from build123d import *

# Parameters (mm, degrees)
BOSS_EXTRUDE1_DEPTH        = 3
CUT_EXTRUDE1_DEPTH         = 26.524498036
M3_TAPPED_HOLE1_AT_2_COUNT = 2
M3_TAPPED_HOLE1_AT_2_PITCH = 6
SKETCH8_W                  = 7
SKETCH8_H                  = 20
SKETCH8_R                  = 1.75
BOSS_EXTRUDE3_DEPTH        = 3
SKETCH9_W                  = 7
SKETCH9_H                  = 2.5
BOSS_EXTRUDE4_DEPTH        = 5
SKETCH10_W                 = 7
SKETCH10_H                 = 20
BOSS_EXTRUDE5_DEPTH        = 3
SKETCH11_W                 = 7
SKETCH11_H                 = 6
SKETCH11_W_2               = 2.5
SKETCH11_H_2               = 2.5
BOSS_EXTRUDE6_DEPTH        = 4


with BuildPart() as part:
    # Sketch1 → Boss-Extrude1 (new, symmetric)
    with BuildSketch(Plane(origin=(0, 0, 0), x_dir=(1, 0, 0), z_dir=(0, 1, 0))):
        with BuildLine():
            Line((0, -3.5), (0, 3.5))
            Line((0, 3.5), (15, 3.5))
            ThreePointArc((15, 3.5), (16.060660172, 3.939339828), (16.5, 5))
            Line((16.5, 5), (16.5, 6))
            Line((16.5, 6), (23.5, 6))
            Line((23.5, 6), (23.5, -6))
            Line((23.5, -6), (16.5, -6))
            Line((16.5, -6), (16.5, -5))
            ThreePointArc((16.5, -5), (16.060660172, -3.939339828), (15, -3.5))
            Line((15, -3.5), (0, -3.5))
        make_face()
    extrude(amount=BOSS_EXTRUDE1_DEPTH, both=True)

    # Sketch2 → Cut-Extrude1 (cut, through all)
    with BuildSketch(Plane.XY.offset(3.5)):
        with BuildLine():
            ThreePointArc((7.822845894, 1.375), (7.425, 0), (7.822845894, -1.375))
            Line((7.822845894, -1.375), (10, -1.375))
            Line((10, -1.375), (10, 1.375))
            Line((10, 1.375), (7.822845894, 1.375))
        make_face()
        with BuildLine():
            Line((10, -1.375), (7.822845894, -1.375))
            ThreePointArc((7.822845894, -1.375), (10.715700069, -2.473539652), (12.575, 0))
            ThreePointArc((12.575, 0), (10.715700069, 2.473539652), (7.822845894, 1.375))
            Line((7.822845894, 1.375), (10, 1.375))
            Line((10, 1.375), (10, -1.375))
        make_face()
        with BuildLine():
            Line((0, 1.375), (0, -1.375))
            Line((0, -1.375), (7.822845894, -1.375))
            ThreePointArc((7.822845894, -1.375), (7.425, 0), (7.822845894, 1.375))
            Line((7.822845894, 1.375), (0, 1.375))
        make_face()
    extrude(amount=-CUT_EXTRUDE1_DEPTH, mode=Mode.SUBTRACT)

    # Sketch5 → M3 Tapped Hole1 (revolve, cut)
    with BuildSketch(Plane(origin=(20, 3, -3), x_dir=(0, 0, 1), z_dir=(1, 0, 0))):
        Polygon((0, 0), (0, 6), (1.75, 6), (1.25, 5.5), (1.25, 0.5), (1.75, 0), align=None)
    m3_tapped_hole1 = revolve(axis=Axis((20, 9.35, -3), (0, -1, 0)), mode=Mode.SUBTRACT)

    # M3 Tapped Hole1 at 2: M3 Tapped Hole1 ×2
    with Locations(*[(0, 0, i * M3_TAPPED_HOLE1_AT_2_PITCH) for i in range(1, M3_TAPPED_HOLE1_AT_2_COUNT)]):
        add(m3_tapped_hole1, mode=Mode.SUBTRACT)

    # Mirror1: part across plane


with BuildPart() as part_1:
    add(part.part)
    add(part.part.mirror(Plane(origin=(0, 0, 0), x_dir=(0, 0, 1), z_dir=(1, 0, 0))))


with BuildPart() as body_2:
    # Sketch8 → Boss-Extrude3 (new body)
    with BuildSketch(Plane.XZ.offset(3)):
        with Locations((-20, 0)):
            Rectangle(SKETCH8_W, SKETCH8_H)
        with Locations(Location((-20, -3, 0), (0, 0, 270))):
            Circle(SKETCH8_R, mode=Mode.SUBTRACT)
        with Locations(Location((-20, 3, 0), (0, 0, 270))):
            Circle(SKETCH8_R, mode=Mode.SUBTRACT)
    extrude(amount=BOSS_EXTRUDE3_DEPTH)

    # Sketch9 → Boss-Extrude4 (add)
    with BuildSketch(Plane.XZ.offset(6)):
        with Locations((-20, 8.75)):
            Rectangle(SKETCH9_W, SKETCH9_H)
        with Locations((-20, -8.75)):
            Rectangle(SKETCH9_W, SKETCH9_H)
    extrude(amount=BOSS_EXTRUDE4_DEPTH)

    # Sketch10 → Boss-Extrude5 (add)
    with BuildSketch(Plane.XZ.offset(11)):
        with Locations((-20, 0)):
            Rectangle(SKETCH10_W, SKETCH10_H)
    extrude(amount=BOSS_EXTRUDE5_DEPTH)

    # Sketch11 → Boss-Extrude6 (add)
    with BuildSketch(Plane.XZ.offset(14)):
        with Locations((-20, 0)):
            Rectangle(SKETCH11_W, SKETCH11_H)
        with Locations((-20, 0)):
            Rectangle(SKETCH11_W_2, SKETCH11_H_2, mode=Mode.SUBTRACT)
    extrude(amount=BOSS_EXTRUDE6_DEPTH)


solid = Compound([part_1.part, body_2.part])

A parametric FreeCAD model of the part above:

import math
import FreeCAD as App
import Part
import Sketcher
Q = App.Units.Quantity


def add_polygon(sketch, points):
    """Adds a closed chain of lines whose ends are joined by coincident constraints."""
    first, n = sketch.GeometryCount, len(points)
    for a, b in zip(points, points[1:] + points[:1]):
        sketch.addGeometry(Part.LineSegment(App.Vector(*a, 0), App.Vector(*b, 0)), False)
    for i in range(n):
        sketch.addConstraint(Sketcher.Constraint("Coincident", first + i, 2, first + (i + 1) % n, 1))

doc = App.newDocument("Part")
body = doc.addObject("PartDesign::Body", "Body")

# Sketch on XZ plane
sketch1 = body.newObject("Sketcher::SketchObject", "Sketch")
sketch1.AttachmentSupport = (doc.getObject("XZ_Plane"), [""])
sketch1.MapMode = "FlatFace"
sketch1.addGeometry(Part.LineSegment(App.Vector(0, -3.5, 0), App.Vector(0, 3.5, 0)), False)
sketch1.addGeometry(Part.LineSegment(App.Vector(0, 3.5, 0), App.Vector(15, 3.5, 0)), False)
sketch1.addGeometry(Part.ArcOfCircle(Part.Circle(App.Vector(15, 5, 0), App.Vector(0, 0, 1), 1.5), math.radians(-90), math.radians(0)), False)
sketch1.addGeometry(Part.LineSegment(App.Vector(16.5, 5, 0), App.Vector(16.5, 6, 0)), False)
sketch1.addGeometry(Part.LineSegment(App.Vector(16.5, 6, 0), App.Vector(23.5, 6, 0)), False)
sketch1.addGeometry(Part.LineSegment(App.Vector(23.5, 6, 0), App.Vector(23.5, -6, 0)), False)
sketch1.addGeometry(Part.LineSegment(App.Vector(23.5, -6, 0), App.Vector(16.5, -6, 0)), False)
sketch1.addGeometry(Part.LineSegment(App.Vector(16.5, -6, 0), App.Vector(16.5, -5, 0)), False)
sketch1.addGeometry(Part.ArcOfCircle(Part.Circle(App.Vector(15, -5, 0), App.Vector(0, 0, 1), 1.5), math.radians(0), math.radians(90)), False)
sketch1.addGeometry(Part.LineSegment(App.Vector(15, -3.5, 0), App.Vector(0, -3.5, 0)), False)
sketch1.addConstraint(Sketcher.Constraint("Coincident", 0, 2, 1, 1))
sketch1.addConstraint(Sketcher.Constraint("Tangent", 1, 2, 2, 1))
sketch1.addConstraint(Sketcher.Constraint("Tangent", 2, 2, 3, 1))
sketch1.addConstraint(Sketcher.Constraint("Coincident", 3, 2, 4, 1))
sketch1.addConstraint(Sketcher.Constraint("Coincident", 4, 2, 5, 1))
sketch1.addConstraint(Sketcher.Constraint("Coincident", 5, 2, 6, 1))
sketch1.addConstraint(Sketcher.Constraint("Coincident", 6, 2, 7, 1))
sketch1.addConstraint(Sketcher.Constraint("Tangent", 7, 2, 8, 1))
sketch1.addConstraint(Sketcher.Constraint("Tangent", 8, 2, 9, 1))
sketch1.addConstraint(Sketcher.Constraint("Coincident", 9, 2, 0, 1))
sketch1.addConstraint(Sketcher.Constraint("Vertical", 0))
sketch1.addConstraint(Sketcher.Constraint("Horizontal", 1))
sketch1.addConstraint(Sketcher.Constraint("Vertical", 3))
sketch1.addConstraint(Sketcher.Constraint("Horizontal", 4))
sketch1.addConstraint(Sketcher.Constraint("Vertical", 5))
sketch1.addConstraint(Sketcher.Constraint("Horizontal", 6))
sketch1.addConstraint(Sketcher.Constraint("Vertical", 7))
sketch1.addConstraint(Sketcher.Constraint("Horizontal", 9))
sketch1.addConstraint(Sketcher.Constraint("Equal", 2, 8))
sketch1.addConstraint(Sketcher.Constraint("Symmetric", 0, 2, 9, 2, -1, 1))
sketch1.addConstraint(Sketcher.Constraint("Symmetric", 3, 2, 6, 2, -1))
sketch1.addConstraint(Sketcher.Constraint("Equal", 6, 0))
sketch1.addConstraint(Sketcher.Constraint("Radius", 2, Q("1.5 mm")))
sketch1.addConstraint(Sketcher.Constraint("DistanceX", 1, 1, 1, 2, Q("15 mm")))
sketch1.addConstraint(Sketcher.Constraint("DistanceX", 4, 1, 4, 2, Q("7 mm")))
sketch1.addConstraint(Sketcher.Constraint("DistanceY", 3, 1, 3, 2, Q("1 mm")))
pad1 = body.newObject("PartDesign::Pad", "Pad")
pad1.Profile = sketch1
pad1.Length = 6
pad1.Midplane = True

# Sketch on XY plane
sketch2 = body.newObject("Sketcher::SketchObject", "Sketch001")
sketch2.AttachmentSupport = (doc.getObject("XY_Plane"), [""])
sketch2.MapMode = "FlatFace"
sketch2.AttachmentOffset = App.Placement(App.Vector(0, 0, 3.5), App.Rotation())
sketch2.addGeometry(Part.ArcOfCircle(Part.Circle(App.Vector(10, 0, 0), App.Vector(0, 0, 1), 2.6), math.radians(-148), math.radians(0)), False)
sketch2.addGeometry(Part.ArcOfCircle(Part.Circle(App.Vector(10, 0, 0), App.Vector(0, 0, 1), 2.6), math.radians(0), math.radians(148)), False)
sketch2.addGeometry(Part.LineSegment(App.Vector(7.8, 1.4, 0), App.Vector(0, 1.4, 0)), False)
sketch2.addGeometry(Part.LineSegment(App.Vector(0, 1.4, 0), App.Vector(0, -1.4, 0)), False)
sketch2.addGeometry(Part.LineSegment(App.Vector(0, -1.4, 0), App.Vector(7.8, -1.4, 0)), False)
sketch2.addConstraint(Sketcher.Constraint("Tangent", 0, 2, 1, 1))
sketch2.addConstraint(Sketcher.Constraint("Coincident", 1, 2, 2, 1))
sketch2.addConstraint(Sketcher.Constraint("Coincident", 2, 2, 3, 1))
sketch2.addConstraint(Sketcher.Constraint("Coincident", 3, 2, 4, 1))
sketch2.addConstraint(Sketcher.Constraint("Coincident", 4, 2, 0, 1))
sketch2.addConstraint(Sketcher.Constraint("Horizontal", 2))
sketch2.addConstraint(Sketcher.Constraint("Vertical", 3))
sketch2.addConstraint(Sketcher.Constraint("Horizontal", 4))
sketch2.addConstraint(Sketcher.Constraint("Equal", 0, 1))
sketch2.addConstraint(Sketcher.Constraint("Symmetric", 2, 2, 3, 2, -1, 1))
sketch2.addConstraint(Sketcher.Constraint("PointOnObject", 0, 3, -1))
sketch2.addConstraint(Sketcher.Constraint("PointOnObject", 0, 2, -1))
sketch2.addConstraint(Sketcher.Constraint("DistanceX", -1, 1, 0, 3, Q("10 mm")))
sketch2.addConstraint(Sketcher.Constraint("Radius", 0, Q("2.575 mm")))
sketch2.addConstraint(Sketcher.Constraint("DistanceY", 3, 2, 3, 1, Q("2.75 mm")))
pocket1 = body.newObject("PartDesign::Pocket", "Pocket")
pocket1.Profile = sketch2
pocket1.Type = "ThroughAll"

# Sketch on YZ plane
sketch3 = body.newObject("Sketcher::SketchObject", "Sketch002")
sketch3.AttachmentSupport = (doc.getObject("YZ_Plane"), [""])
sketch3.MapMode = "FlatFace"
sketch3.AttachmentOffset = App.Placement(App.Vector(0, 0, 20), App.Rotation())
add_polygon(sketch3, [(-3, -3), (3, -3), (3, -1.2), (2.5, -1.8), (-2.5, -1.8), (-3, -1.2)])  # lines 0-5
sketch3.addGeometry(Part.LineSegment(App.Vector(3, -3, 0), App.Vector(-3, -3, 0)), True)  # axis
sketch3.addConstraint(Sketcher.Constraint("Horizontal", 0))
sketch3.addConstraint(Sketcher.Constraint("Vertical", 1))
sketch3.addConstraint(Sketcher.Constraint("Horizontal", 3))
sketch3.addConstraint(Sketcher.Constraint("Vertical", 5))
sketch3.addConstraint(Sketcher.Constraint("Horizontal", 6))
sketch3.addConstraint(Sketcher.Constraint("Coincident", 6, 1, 0, 2))
sketch3.addConstraint(Sketcher.Constraint("Symmetric", 1, 2, 4, 2, -2))
sketch3.addConstraint(Sketcher.Constraint("Perpendicular", 2, 4))
sketch3.addConstraint(Sketcher.Constraint("Vertical", 4, 2, 6, 2))
sketch3.addConstraint(Sketcher.Constraint("Equal", 2, 4))
sketch3.addConstraint(Sketcher.Constraint("DistanceX", 0, 1, 0, 2, Q("6 mm")))
sketch3.addConstraint(Sketcher.Constraint("DistanceX", 3, 2, 3, 1, Q("5 mm")))
sketch3.addConstraint(Sketcher.Constraint("DistanceY", 0, 2, -1, 1, Q("3 mm")))
sketch3.addConstraint(Sketcher.Constraint("DistanceY", 1, 1, 1, 2, Q("1.75 mm")))
groove = body.newObject("PartDesign::Groove", "Groove")
groove.Profile = sketch3
groove.ReferenceAxis = (sketch3, ["Axis0"])
groove.Angle = 360
doc.recompute()

linearpattern = body.newObject("PartDesign::LinearPattern", "LinearPattern")
linearpattern.Originals = [groove]
linearpattern.Direction = (doc.getObject("Z_Axis"), [""])
linearpattern.Mode = "offset"
linearpattern.Offset = 6
linearpattern.Occurrences = 2
body.Tip = linearpattern
body2 = doc.addObject("PartDesign::Body", "Body001")
doc.recompute()

body2.BaseFeature = body
doc.recompute()

mirroring = doc.addObject("Part::Mirroring", "Mirroring")
mirroring.Source = body
mirroring.Base = App.Vector(0, 0, 0)
mirroring.Normal = App.Vector(1, 0, 0)
body3 = doc.addObject("PartDesign::Body", "Body002")
body3.BaseFeature = mirroring
boolean = body2.newObject("PartDesign::Boolean", "Boolean")
boolean.Type = "Fuse"
boolean.addObjects([body3])
doc.recompute()
body4 = doc.addObject("PartDesign::Body", "Body003")

# Sketch on XZ plane
sketch4 = body4.newObject("Sketcher::SketchObject", "Sketch003")
sketch4.AttachmentSupport = (doc.getObject("XZ_Plane003"), [""])
sketch4.MapMode = "FlatFace"
sketch4.AttachmentOffset = App.Placement(App.Vector(0, 0, 3), App.Rotation())
add_polygon(sketch4, [(-23.5, 10), (-23.5, -10), (-16.5, -10), (-16.5, 10)])  # lines 0-3
sketch4.addGeometry(Part.Circle(App.Vector(-20, -3, 0), App.Vector(0, 0, 1), 1.8), False)  # 4
sketch4.addGeometry(Part.Circle(App.Vector(-20, 3, 0), App.Vector(0, 0, 1), 1.8), False)  # 5
sketch4.addConstraint(Sketcher.Constraint("Vertical", 0))
sketch4.addConstraint(Sketcher.Constraint("Horizontal", 1))
sketch4.addConstraint(Sketcher.Constraint("Vertical", 2))
sketch4.addConstraint(Sketcher.Constraint("Horizontal", 3))
sketch4.addConstraint(Sketcher.Constraint("Equal", 4, 5))
sketch4.addConstraint(Sketcher.Constraint("Symmetric", 4, 3, 5, 3, -1))
sketch4.addConstraint(Sketcher.Constraint("Diameter", 4, Q("3.5 mm")))
sketch4.addConstraint(Sketcher.Constraint("DistanceX", 1, 1, 1, 2, Q("7 mm")))
sketch4.addConstraint(Sketcher.Constraint("DistanceY", 0, 2, 0, 1, Q("20 mm")))
sketch4.addConstraint(Sketcher.Constraint("DistanceX", 4, 3, -1, 1, Q("20 mm")))
sketch4.addConstraint(Sketcher.Constraint("DistanceY", 4, 3, -1, 1, Q("3 mm")))
sketch4.addConstraint(Sketcher.Constraint("DistanceY", 0, 2, -1, 1, Q("10 mm")))
sketch4.addConstraint(Sketcher.Constraint("DistanceX", 0, 2, -1, 1, Q("23.5 mm")))
pad2 = body4.newObject("PartDesign::Pad", "Pad001")
pad2.Profile = sketch4
pad2.Length = 3

# Sketch on XZ plane
sketch5 = body4.newObject("Sketcher::SketchObject", "Sketch004")
sketch5.AttachmentSupport = (doc.getObject("XZ_Plane003"), [""])
sketch5.MapMode = "FlatFace"
sketch5.AttachmentOffset = App.Placement(App.Vector(0, 0, 6), App.Rotation())
add_polygon(sketch5, [(-23.5, 10), (-23.5, 7.5), (-16.5, 7.5), (-16.5, 10)])  # lines 0-3
add_polygon(sketch5, [(-23.5, -7.5), (-23.5, -10), (-16.5, -10), (-16.5, -7.5)])  # lines 4-7
sketch5.addConstraint(Sketcher.Constraint("Vertical", 0))
sketch5.addConstraint(Sketcher.Constraint("Horizontal", 1))
sketch5.addConstraint(Sketcher.Constraint("Vertical", 2))
sketch5.addConstraint(Sketcher.Constraint("Horizontal", 3))
sketch5.addConstraint(Sketcher.Constraint("Vertical", 4))
sketch5.addConstraint(Sketcher.Constraint("Horizontal", 5))
sketch5.addConstraint(Sketcher.Constraint("Vertical", 6))
sketch5.addConstraint(Sketcher.Constraint("Horizontal", 7))
sketch5.addConstraint(Sketcher.Constraint("Symmetric", 3, 2, 4, 2, -1))
sketch5.addConstraint(Sketcher.Constraint("Symmetric", 1, 2, 6, 2, -1))
sketch5.addConstraint(Sketcher.Constraint("DistanceX", 1, 1, 1, 2, Q("7 mm")))
sketch5.addConstraint(Sketcher.Constraint("DistanceY", 0, 2, 0, 1, Q("2.5 mm")))
sketch5.addConstraint(Sketcher.Constraint("DistanceY", -1, 1, 2, 2, Q("10 mm")))
sketch5.addConstraint(Sketcher.Constraint("DistanceX", 0, 2, -1, 1, Q("23.5 mm")))
pad3 = body4.newObject("PartDesign::Pad", "Pad002")
pad3.Profile = sketch5
pad3.Length = 5

# Sketch on XZ plane
sketch6 = body4.newObject("Sketcher::SketchObject", "Sketch005")
sketch6.AttachmentSupport = (doc.getObject("XZ_Plane003"), [""])
sketch6.MapMode = "FlatFace"
sketch6.AttachmentOffset = App.Placement(App.Vector(0, 0, 11), App.Rotation())
add_polygon(sketch6, [(-24, 10), (-24, -10), (-16, -10), (-16, 10)])  # lines 0-3
sketch6.addConstraint(Sketcher.Constraint("Vertical", 0))
sketch6.addConstraint(Sketcher.Constraint("Horizontal", 1))
sketch6.addConstraint(Sketcher.Constraint("Vertical", 2))
sketch6.addConstraint(Sketcher.Constraint("Horizontal", 3))
sketch6.addConstraint(Sketcher.Constraint("DistanceX", 1, 1, 1, 2, Q("7 mm")))
sketch6.addConstraint(Sketcher.Constraint("DistanceY", 0, 2, 0, 1, Q("20 mm")))
sketch6.addConstraint(Sketcher.Constraint("DistanceY", 0, 2, -1, 1, Q("10 mm")))
sketch6.addConstraint(Sketcher.Constraint("DistanceX", 0, 2, -1, 1, Q("23.5 mm")))
pad4 = body4.newObject("PartDesign::Pad", "Pad003")
pad4.Profile = sketch6
pad4.Length = 3

# Sketch on XZ plane
sketch7 = body4.newObject("Sketcher::SketchObject", "Sketch006")
sketch7.AttachmentSupport = (doc.getObject("XZ_Plane003"), [""])
sketch7.MapMode = "FlatFace"
sketch7.AttachmentOffset = App.Placement(App.Vector(0, 0, 14), App.Rotation())
add_polygon(sketch7, [(-23.5, 3), (-23.5, -3), (-16.5, -3), (-16.5, 3)])  # lines 0-3
add_polygon(sketch7, [(-18.8, -1.2), (-21.2, -1.2), (-21.2, 1.2), (-18.8, 1.2)])  # lines 4-7
sketch7.addConstraint(Sketcher.Constraint("Vertical", 0))
sketch7.addConstraint(Sketcher.Constraint("Horizontal", 1))
sketch7.addConstraint(Sketcher.Constraint("Vertical", 2))
sketch7.addConstraint(Sketcher.Constraint("Horizontal", 3))
sketch7.addConstraint(Sketcher.Constraint("Horizontal", 4))
sketch7.addConstraint(Sketcher.Constraint("Vertical", 5))
sketch7.addConstraint(Sketcher.Constraint("Horizontal", 6))
sketch7.addConstraint(Sketcher.Constraint("Vertical", 7))
sketch7.addConstraint(Sketcher.Constraint("Equal", 6, 5))
sketch7.addConstraint(Sketcher.Constraint("DistanceX", 1, 1, 1, 2, Q("7 mm")))
sketch7.addConstraint(Sketcher.Constraint("DistanceY", 0, 2, 0, 1, Q("6 mm")))
sketch7.addConstraint(Sketcher.Constraint("DistanceX", 4, 2, 4, 1, Q("2.5 mm")))
sketch7.addConstraint(Sketcher.Constraint("DistanceY", 0, 2, -1, 1, Q("3 mm")))
sketch7.addConstraint(Sketcher.Constraint("DistanceX", 0, 2, -1, 1, Q("23.5 mm")))
sketch7.addConstraint(Sketcher.Constraint("DistanceX", 4, 2, -1, 1, Q("21.25 mm")))
sketch7.addConstraint(Sketcher.Constraint("DistanceY", 4, 2, -1, 1, Q("1.25 mm")))
pad5 = body4.newObject("PartDesign::Pad", "Pad004")
pad5.Profile = sketch7
pad5.Length = 4
mirroring.Visibility = False

doc.recompute()
